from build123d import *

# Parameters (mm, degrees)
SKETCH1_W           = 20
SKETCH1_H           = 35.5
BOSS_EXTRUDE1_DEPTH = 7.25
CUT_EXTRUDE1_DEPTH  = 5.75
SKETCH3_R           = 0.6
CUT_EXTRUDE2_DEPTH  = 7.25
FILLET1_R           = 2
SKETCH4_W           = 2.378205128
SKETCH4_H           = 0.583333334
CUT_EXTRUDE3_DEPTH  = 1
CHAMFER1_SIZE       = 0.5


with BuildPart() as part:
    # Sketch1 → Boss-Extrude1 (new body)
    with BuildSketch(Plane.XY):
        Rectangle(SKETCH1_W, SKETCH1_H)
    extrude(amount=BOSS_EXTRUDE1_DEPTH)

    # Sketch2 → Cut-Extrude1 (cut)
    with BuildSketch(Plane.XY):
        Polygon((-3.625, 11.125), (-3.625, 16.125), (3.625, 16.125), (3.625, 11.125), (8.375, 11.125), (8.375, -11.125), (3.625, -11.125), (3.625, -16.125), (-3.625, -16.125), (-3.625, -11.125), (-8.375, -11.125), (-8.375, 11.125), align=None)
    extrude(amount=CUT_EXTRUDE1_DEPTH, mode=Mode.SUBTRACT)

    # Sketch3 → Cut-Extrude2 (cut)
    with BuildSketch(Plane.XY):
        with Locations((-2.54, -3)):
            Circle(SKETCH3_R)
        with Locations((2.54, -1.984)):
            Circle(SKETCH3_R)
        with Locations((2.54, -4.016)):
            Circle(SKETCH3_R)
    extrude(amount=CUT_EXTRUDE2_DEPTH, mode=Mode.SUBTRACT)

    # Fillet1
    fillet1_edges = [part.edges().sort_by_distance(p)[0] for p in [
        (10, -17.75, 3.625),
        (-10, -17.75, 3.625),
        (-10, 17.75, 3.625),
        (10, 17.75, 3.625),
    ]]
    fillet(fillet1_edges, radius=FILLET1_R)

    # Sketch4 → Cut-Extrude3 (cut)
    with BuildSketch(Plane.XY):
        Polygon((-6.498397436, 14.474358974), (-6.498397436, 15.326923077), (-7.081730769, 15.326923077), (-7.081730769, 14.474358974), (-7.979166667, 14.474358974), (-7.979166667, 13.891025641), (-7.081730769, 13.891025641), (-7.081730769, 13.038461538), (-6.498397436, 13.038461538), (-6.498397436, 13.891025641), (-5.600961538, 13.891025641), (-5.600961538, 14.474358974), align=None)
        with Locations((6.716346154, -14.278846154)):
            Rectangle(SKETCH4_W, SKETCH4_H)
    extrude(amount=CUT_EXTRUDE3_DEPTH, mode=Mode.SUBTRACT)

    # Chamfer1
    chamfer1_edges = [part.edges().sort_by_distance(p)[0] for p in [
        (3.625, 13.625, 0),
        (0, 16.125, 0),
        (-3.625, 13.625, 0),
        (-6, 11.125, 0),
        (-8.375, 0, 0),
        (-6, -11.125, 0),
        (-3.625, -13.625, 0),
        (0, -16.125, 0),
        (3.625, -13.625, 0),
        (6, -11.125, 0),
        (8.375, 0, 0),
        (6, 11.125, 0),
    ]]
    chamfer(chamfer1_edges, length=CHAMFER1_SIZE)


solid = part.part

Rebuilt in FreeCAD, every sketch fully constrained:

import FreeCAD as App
import Part
import Sketcher
Q = App.Units.Quantity


def edges_at(feature, points):
    """Names of the edges that pass closest to the given points."""
    edges = feature.Shape.Edges
    near = lambda p: min(range(len(edges)), key=lambda i: edges[i].distToShape(Part.Vertex(*p))[0])
    return sorted({f"Edge{near(p) + 1}" for p in points})


def add_polygon(sketch, points):
    """Adds a closed chain of lines whose ends are joined by coincident constraints."""
    first, n = sketch.GeometryCount, len(points)
    for a, b in zip(points, points[1:] + points[:1]):
        sketch.addGeometry(Part.LineSegment(App.Vector(*a, 0), App.Vector(*b, 0)), False)
    for i in range(n):
        sketch.addConstraint(Sketcher.Constraint("Coincident", first + i, 2, first + (i + 1) % n, 1))

doc = App.newDocument("Part")
body = doc.addObject("PartDesign::Body", "Body")

# Sketch on XY plane
sketch1 = doc.addObject("Sketcher::SketchObject", "Sketch")
body.addObject(sketch1)
sketch1.AttachmentSupport = (doc.XY_Plane, [""])
sketch1.MapMode = "FlatFace"
add_polygon(sketch1, [(-10, 17.75), (-10, -17.75), (10, -17.75), (10, 17.75)])  # lines 0-3
sketch1.addConstraint([
    Sketcher.Constraint("Vertical", 0),
    Sketcher.Constraint("Horizontal", 1),
    Sketcher.Constraint("Vertical", 2),
    Sketcher.Constraint("Horizontal", 3),
    Sketcher.Constraint("Symmetric", 0, 2, 2, 2, -1, 1),
    Sketcher.Constraint("DistanceX", 1, 1, 1, 2, Q("20 mm")),
    Sketcher.Constraint("DistanceY", 0, 2, 0, 1, Q("35.5 mm")),
])
pad1 = doc.addObject("PartDesign::Pad", "Pad")
body.addObject(pad1)
pad1.Profile = sketch1
pad1.Length = 7.25

# Sketch on XY plane
sketch2 = doc.addObject("Sketcher::SketchObject", "Sketch001")
body.addObject(sketch2)
sketch2.AttachmentSupport = (doc.XY_Plane, [""])
sketch2.MapMode = "FlatFace"
add_polygon(sketch2, [(-3.625, 16.125), (-3.625, 11.125), (-8.375, 11.125), (-8.375, -11.125), (-3.625, -11.125), (-3.625, -16.125), (3.625, -16.125), (3.625, -11.125), (8.375, -11.125), (8.375, 11.125), (3.625, 11.125), (3.625, 16.125)])  # lines 0-11
sketch2.addConstraint([
    Sketcher.Constraint("Vertical", 0),
    Sketcher.Constraint("Horizontal", 1),
    Sketcher.Constraint("Vertical", 2),
    Sketcher.Constraint("Horizontal", 3),
    Sketcher.Constraint("Vertical", 4),
    Sketcher.Constraint("Horizontal", 5),
    Sketcher.Constraint("Vertical", 6),
    Sketcher.Constraint("Horizontal", 7),
    Sketcher.Constraint("Vertical", 8),
    Sketcher.Constraint("Horizontal", 9),
    Sketcher.Constraint("Vertical", 10),
    Sketcher.Constraint("Horizontal", 11),
    Sketcher.Constraint("Symmetric", 0, 2, 6, 2, -1, 1),
    Sketcher.Constraint("Symmetric", 2, 2, 8, 2, -1, 1),
    Sketcher.Constraint("Symmetric", 4, 2, 10, 2, -1, 1),
    Sketcher.Constraint("Symmetric", 3, 2, 6, 2, -2),
    Sketcher.Constraint("DistanceY", 0, 2, 0, 1, Q("5 mm")),
    Sketcher.Constraint("DistanceX", 2, 2, 5, 2, Q("12 mm")),
    Sketcher.Constraint("DistanceX", 1, 2, 1, 1, Q("4.75 mm")),
    Sketcher.Constraint("DistanceY", 2, 2, 2, 1, Q("22.25 mm")),
])
pocket1 = doc.addObject("PartDesign::Pocket", "Pocket")
body.addObject(pocket1)
pocket1.Profile = sketch2
pocket1.Length = 5.75
pocket1.Reversed = True

# Sketch on XY plane
sketch3 = doc.addObject("Sketcher::SketchObject", "Sketch002")
body.addObject(sketch3)
sketch3.AttachmentSupport = (doc.XY_Plane, [""])
sketch3.MapMode = "FlatFace"
sketch3.addGeometry([
    Part.Circle(App.Vector(-2.54, -3, 0), App.Vector(0, 0, 1), 0.6),
    Part.Circle(App.Vector(2.54, -1.984, 0), App.Vector(0, 0, 1), 0.6),
    Part.Circle(App.Vector(2.54, -4.016, 0), App.Vector(0, 0, 1), 0.6),
], False)
sketch3.addConstraint([
    Sketcher.Constraint("Equal", 0, 1),
    Sketcher.Constraint("Equal", 1, 2),
    Sketcher.Constraint("Vertical", 1, 3, 2, 3),
    Sketcher.Constraint("Diameter", 0, Q("1.2 mm")),
    Sketcher.Constraint("DistanceY", 0, 3, -1, 1, Q("3 mm")),
    Sketcher.Constraint("DistanceX", 0, 3, -1, 1, Q("2.54 mm")),
    Sketcher.Constraint("DistanceX", -1, 1, 1, 3, Q("2.54 mm")),
    Sketcher.Constraint("DistanceY", 1, 3, -1, 1, Q("1.984 mm")),
    Sketcher.Constraint("DistanceY", 2, 3, -1, 1, Q("4.016 mm")),
])
pocket2 = doc.addObject("PartDesign::Pocket", "Pocket001")
body.addObject(pocket2)
pocket2.Profile = sketch3
pocket2.Length = 7.25
pocket2.Reversed = True
doc.recompute()

fillet = doc.addObject("PartDesign::Fillet", "Fillet")
body.addObject(fillet)
fillet.Base = (pocket2, edges_at(pocket2, [
    (10, -17.75, 3.625),
    (-10, -17.75, 3.625),
    (-10, 17.75, 3.625),
    (10, 17.75, 3.625),
]))
fillet.Radius = 2

# Sketch on XY plane
sketch4 = doc.addObject("Sketcher::SketchObject", "Sketch003")
body.addObject(sketch4)
sketch4.AttachmentSupport = (doc.XY_Plane, [""])
sketch4.MapMode = "FlatFace"
add_polygon(sketch4, [(-6.498397, 14.474359), (-6.498397, 15.326923), (-7.081731, 15.326923), (-7.081731, 14.474359), (-7.979167, 14.474359), (-7.979167, 13.891026), (-7.081731, 13.891026), (-7.081731, 13.038462), (-6.498397, 13.038462), (-6.498397, 13.891026), (-5.600962, 13.891026), (-5.600962, 14.474359)])  # lines 0-11
add_polygon(sketch4, [(5.527244, -13.987179), (5.527244, -14.570513), (7.905449, -14.570513), (7.905449, -13.987179)])  # lines 12-15
sketch4.addConstraint([
    Sketcher.Constraint("Vertical", 0),
    Sketcher.Constraint("Horizontal", 1),
    Sketcher.Constraint("Vertical", 2),
    Sketcher.Constraint("Horizontal", 3),
    Sketcher.Constraint("Vertical", 4),
    Sketcher.Constraint("Horizontal", 5),
    Sketcher.Constraint("Vertical", 6),
    Sketcher.Constraint("Horizontal", 7),
    Sketcher.Constraint("Vertical", 8),
    Sketcher.Constraint("Horizontal", 9),
    Sketcher.Constraint("Vertical", 10),
    Sketcher.Constraint("Horizontal", 11),
    Sketcher.Constraint("Vertical", 12),
    Sketcher.Constraint("Horizontal", 13),
    Sketcher.Constraint("Vertical", 14),
    Sketcher.Constraint("Horizontal", 15),
    Sketcher.Constraint("Horizontal", 5, 2, 8, 2),
    Sketcher.Constraint("Horizontal", 3, 2, 10, 2),
    Sketcher.Constraint("Vertical", 2, 2, 5, 2),
    Sketcher.Constraint("Vertical", 0, 2, 7, 2),
    Sketcher.Constraint("Equal", 5, 9),
    Sketcher.Constraint("Equal", 7, 4),
    Sketcher.Constraint("Equal", 2, 6),
    Sketcher.Constraint("Equal", 10, 12),
    Sketcher.Constraint("DistanceX", 1, 2, 1, 1, Q("0.583333 mm")),
    Sketcher.Constraint("DistanceX", 3, 2, 3, 1, Q("0.897436 mm")),
    Sketcher.Constraint("DistanceX", 13, 1, 13, 2, Q("2.378205 mm")),
    Sketcher.Constraint("DistanceY", 0, 1, 0, 2, Q("0.852564 mm")),
    Sketcher.Constraint("DistanceX", 1, 2, -1, 1, Q("7.081731 mm")),
    Sketcher.Constraint("DistanceY", -1, 1, 2, 2, Q("14.474359 mm")),
    Sketcher.Constraint("DistanceX", -1, 1, 13, 2, Q("7.905449 mm")),
    Sketcher.Constraint("DistanceY", 14, 2, -1, 1, Q("13.987179 mm")),
])
pocket3 = doc.addObject("PartDesign::Pocket", "Pocket002")
body.addObject(pocket3)
pocket3.Profile = sketch4
pocket3.Length = 1
pocket3.Reversed = True
doc.recompute()

chamfer = doc.addObject("PartDesign::Chamfer", "Chamfer")
body.addObject(chamfer)
chamfer.Base = (pocket3, edges_at(pocket3, [
    (3.625, 13.625, 0),
    (0, 16.125, 0),
    (-3.625, 13.625, 0),
    (-6, 11.125, 0),
    (-8.375, 0, 0),
    (-6, -11.125, 0),
    (-3.625, -13.625, 0),
    (0, -16.125, 0),
    (3.625, -13.625, 0),
    (6, -11.125, 0),
    (8.375, 0, 0),
    (6, 11.125, 0),
]))
chamfer.Size = 0.5

doc.recompute()
